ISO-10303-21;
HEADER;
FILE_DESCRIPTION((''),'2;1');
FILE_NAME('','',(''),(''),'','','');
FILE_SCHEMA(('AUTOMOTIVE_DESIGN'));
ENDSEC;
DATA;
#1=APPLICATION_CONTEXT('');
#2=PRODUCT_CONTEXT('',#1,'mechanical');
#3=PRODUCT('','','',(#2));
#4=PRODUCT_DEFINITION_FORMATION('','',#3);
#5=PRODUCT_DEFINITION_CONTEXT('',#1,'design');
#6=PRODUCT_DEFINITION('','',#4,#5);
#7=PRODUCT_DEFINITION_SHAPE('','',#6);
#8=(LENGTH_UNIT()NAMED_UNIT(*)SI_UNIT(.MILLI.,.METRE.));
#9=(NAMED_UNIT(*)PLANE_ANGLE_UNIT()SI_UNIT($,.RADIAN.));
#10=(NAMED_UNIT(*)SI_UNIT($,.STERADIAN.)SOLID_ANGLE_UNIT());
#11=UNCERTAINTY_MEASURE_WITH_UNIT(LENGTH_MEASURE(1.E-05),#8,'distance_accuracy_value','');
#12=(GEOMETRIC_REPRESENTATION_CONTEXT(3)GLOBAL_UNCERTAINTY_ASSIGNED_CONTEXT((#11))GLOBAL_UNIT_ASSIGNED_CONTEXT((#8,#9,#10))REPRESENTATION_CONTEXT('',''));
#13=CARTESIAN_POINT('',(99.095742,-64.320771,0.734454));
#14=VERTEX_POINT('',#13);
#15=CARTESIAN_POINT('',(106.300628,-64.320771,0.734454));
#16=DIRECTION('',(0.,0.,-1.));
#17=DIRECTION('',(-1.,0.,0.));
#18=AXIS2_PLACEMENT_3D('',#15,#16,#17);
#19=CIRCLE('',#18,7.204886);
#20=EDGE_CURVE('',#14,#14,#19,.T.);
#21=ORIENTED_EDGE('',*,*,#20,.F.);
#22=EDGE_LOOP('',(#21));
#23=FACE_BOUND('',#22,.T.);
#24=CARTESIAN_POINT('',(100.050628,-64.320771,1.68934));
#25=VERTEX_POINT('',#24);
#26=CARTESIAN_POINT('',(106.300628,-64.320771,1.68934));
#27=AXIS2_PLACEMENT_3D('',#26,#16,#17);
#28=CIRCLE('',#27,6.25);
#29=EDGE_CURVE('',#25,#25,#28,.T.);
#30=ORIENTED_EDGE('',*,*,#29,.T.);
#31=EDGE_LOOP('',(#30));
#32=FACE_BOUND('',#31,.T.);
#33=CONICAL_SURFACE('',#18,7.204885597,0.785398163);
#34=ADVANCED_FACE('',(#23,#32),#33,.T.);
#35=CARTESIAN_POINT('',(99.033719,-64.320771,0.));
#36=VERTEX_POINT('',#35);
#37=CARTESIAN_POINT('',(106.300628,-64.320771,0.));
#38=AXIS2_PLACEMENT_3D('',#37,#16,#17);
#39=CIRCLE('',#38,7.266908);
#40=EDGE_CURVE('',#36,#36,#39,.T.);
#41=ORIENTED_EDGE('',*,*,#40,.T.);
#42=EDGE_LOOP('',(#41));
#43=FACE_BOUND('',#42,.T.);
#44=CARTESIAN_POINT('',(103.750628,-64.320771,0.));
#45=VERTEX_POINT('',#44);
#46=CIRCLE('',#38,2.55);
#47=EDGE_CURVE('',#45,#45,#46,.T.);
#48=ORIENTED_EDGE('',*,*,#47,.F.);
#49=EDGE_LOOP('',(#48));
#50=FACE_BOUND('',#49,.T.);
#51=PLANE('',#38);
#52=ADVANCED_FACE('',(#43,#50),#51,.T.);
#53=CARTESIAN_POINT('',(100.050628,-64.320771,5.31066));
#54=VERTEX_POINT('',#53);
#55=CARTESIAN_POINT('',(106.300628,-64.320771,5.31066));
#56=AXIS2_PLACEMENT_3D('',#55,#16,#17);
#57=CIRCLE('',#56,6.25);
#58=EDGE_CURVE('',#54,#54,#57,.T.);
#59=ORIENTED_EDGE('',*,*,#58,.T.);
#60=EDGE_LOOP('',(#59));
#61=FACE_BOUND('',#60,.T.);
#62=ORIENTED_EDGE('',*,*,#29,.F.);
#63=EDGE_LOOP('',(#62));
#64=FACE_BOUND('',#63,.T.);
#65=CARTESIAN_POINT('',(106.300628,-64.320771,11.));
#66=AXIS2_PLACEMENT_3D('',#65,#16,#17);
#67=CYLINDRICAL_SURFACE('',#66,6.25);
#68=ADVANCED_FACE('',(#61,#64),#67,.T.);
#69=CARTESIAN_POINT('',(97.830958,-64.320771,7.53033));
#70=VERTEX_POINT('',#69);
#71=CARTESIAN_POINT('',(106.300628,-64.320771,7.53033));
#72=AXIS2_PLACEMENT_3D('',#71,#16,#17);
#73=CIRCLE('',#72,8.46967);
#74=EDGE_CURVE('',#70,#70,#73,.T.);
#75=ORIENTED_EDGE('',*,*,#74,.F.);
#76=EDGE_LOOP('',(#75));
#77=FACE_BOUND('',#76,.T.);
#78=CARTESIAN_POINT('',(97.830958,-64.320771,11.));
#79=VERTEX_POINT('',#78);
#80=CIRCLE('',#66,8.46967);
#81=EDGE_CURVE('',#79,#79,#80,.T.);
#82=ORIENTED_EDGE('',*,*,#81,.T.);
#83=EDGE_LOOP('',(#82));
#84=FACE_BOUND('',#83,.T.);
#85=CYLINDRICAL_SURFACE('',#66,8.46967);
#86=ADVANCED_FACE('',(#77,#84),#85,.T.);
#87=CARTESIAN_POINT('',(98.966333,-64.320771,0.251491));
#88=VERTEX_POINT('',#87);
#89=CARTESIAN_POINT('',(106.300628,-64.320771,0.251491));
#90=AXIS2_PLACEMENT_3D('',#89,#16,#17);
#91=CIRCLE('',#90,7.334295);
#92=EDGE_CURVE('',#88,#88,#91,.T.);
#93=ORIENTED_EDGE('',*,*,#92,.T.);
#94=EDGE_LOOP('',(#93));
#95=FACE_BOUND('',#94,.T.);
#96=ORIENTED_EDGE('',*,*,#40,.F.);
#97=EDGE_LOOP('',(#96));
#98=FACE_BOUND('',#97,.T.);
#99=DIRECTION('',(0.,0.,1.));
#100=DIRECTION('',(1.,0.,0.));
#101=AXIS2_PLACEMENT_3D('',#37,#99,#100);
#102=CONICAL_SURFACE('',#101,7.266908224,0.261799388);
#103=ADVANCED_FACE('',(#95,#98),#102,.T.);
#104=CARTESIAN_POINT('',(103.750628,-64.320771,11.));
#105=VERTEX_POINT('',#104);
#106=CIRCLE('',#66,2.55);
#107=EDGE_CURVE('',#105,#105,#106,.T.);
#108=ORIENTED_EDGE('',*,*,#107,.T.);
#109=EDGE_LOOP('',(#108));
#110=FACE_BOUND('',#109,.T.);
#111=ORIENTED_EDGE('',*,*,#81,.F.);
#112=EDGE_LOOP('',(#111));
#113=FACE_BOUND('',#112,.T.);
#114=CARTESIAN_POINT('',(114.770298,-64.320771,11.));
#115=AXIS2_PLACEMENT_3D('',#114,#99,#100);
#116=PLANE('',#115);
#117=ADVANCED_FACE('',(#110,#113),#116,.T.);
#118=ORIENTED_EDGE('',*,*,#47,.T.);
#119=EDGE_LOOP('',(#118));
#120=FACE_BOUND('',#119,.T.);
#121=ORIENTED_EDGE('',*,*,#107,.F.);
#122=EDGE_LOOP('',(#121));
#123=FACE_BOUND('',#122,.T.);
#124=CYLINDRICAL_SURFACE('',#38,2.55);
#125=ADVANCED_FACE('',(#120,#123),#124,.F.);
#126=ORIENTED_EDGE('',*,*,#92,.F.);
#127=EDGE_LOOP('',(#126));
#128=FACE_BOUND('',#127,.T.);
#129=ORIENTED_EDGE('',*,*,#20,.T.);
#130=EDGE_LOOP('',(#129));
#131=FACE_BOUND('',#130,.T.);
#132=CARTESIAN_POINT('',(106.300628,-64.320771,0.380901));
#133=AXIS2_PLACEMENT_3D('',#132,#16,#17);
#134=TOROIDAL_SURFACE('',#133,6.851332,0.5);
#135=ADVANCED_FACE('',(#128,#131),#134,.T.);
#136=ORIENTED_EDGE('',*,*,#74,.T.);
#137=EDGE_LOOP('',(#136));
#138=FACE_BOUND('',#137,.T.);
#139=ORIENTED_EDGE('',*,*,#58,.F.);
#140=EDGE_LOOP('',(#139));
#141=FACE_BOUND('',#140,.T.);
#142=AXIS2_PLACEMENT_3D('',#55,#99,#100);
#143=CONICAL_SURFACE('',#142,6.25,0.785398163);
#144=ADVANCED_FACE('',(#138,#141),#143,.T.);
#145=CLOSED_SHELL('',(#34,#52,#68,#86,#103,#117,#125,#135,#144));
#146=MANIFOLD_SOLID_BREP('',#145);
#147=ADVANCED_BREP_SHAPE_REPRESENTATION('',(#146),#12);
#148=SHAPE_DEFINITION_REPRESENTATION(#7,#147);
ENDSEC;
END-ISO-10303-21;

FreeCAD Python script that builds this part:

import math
import FreeCAD as App
import Part
import Sketcher
Q = App.Units.Quantity

doc = App.newDocument("Part")
params = doc.addObject("Spreadsheet::Sheet", "Params")
for row, (alias, value) in enumerate([
    ("sketch1_radius", "0.5 mm"),
    ("sketch1_height", "11 mm"),
    ("revolution_angle", "360 deg"),
    ("sketch2_diameter", "5.1 mm"),
    ("hole_diameter", "5.1 mm"),
    ("hole_depth", "11 mm"),
], start=1):
    params.set(f"A{row}", alias)
    params.set(f"B{row}", "=" + value)
    params.setAlias(f"B{row}", alias)

body = doc.addObject("PartDesign::Body", "Body")

# Sketch on XZ plane
sketch1 = doc.addObject("Sketcher::SketchObject", "Sketch")
body.addObject(sketch1)
sketch1.AttachmentSupport = (doc.XZ_Plane, [""])
sketch1.MapMode = "FlatFace"
sketch1.AttachmentOffset = App.Placement(App.Vector(0, 0, 64.320771), App.Rotation())
sketch1.addGeometry([
    Part.LineSegment(App.Vector(114.77, 11, 0), App.Vector(106.3, 11, 0)),  # 0
    Part.LineSegment(App.Vector(106.3, 11, 0), App.Vector(106.3, 0, 0)),  # 1
    Part.LineSegment(App.Vector(106.3, 0, 0), App.Vector(113.57, 0, 0)),  # 2
    Part.LineSegment(App.Vector(113.57, 0, 0), App.Vector(113.63, 0.25, 0)),  # 3
    Part.ArcOfCircle(Part.Circle(App.Vector(113.15, 0.38, 0), App.Vector(0, 0, 1), 0.5), math.radians(-15), math.radians(45)),  # 4
    Part.LineSegment(App.Vector(113.51, 0.73, 0), App.Vector(112.55, 1.69, 0)),  # 5
    Part.LineSegment(App.Vector(112.55, 1.69, 0), App.Vector(112.55, 5.31, 0)),  # 6
    Part.LineSegment(App.Vector(112.55, 5.31, 0), App.Vector(114.77, 7.53, 0)),  # 7
    Part.LineSegment(App.Vector(114.77, 7.53, 0), App.Vector(114.77, 11, 0)),  # 8
], False)
sketch1.addGeometry(Part.LineSegment(App.Vector(106.3, 11, 0), App.Vector(106.3, 0, 0)), True)  # axis
sketch1.addConstraint([
    Sketcher.Constraint("Coincident", 0, 2, 1, 1),
    Sketcher.Constraint("Coincident", 1, 2, 2, 1),
    Sketcher.Constraint("Coincident", 2, 2, 3, 1),
    Sketcher.Constraint("Tangent", 3, 2, 4, 1),
    Sketcher.Constraint("Tangent", 4, 2, 5, 1),
    Sketcher.Constraint("Coincident", 5, 2, 6, 1),
    Sketcher.Constraint("Coincident", 6, 2, 7, 1),
    Sketcher.Constraint("Coincident", 7, 2, 8, 1),
    Sketcher.Constraint("Coincident", 8, 2, 0, 1),
    Sketcher.Constraint("Horizontal", 0),
    Sketcher.Constraint("Vertical", 1),
    Sketcher.Constraint("Horizontal", 2),
    Sketcher.Constraint("Vertical", 6),
    Sketcher.Constraint("Vertical", 8),
    Sketcher.Constraint("Vertical", 9),
    Sketcher.Constraint("Coincident", 9, 1, 0, 2),
    Sketcher.Constraint("PointOnObject", 1, 2, -1),
    Sketcher.Constraint("PointOnObject", 9, 2, -1),
    Sketcher.Constraint("Perpendicular", 5, 7),
    Sketcher.Constraint("Radius", 4, 0.5),
    Sketcher.Constraint("DistanceY", 1, 2, 1, 1, 11.0),
    Sketcher.Constraint("Angle", 3, Q("75 deg")),
    Sketcher.Constraint("Angle", 5, Q("135 deg")),
    Sketcher.Constraint("DistanceX", 1, 2, 5, 2, 6.25),
    Sketcher.Constraint("DistanceX", 0, 2, 0, 1, 8.46967),
    Sketcher.Constraint("DistanceX", 2, 1, 2, 2, 7.266908),
    Sketcher.Constraint("DistanceY", 6, 1, 6, 2, 3.62132),
    Sketcher.Constraint("DistanceY", 8, 1, 8, 2, 3.46967),
    Sketcher.Constraint("DistanceX", -1, 1, 4, 3, 113.15196),
])
sketch1.setExpression("Constraints[19]", "Params.sketch1_radius")
sketch1.setExpression("Constraints[20]", "Params.sketch1_height")
revolution = doc.addObject("PartDesign::Revolution", "Revolution")
body.addObject(revolution)
revolution.Profile = sketch1
revolution.ReferenceAxis = (sketch1, ["Axis0"])
revolution.setExpression("Angle", "Params.revolution_angle")

# Sketch on XY plane
sketch2 = doc.addObject("Sketcher::SketchObject", "Sketch001")
body.addObject(sketch2)
sketch2.AttachmentSupport = (doc.XY_Plane, [""])
sketch2.MapMode = "FlatFace"
sketch2.addGeometry(Part.Circle(App.Vector(106.3, -64.3, 0), App.Vector(0, 0, 1), 2.5), False)
sketch2.addConstraint([
    Sketcher.Constraint("Diameter", 0, 5.1),
    Sketcher.Constraint("DistanceY", 0, 3, -1, 1, 64.320771),
    Sketcher.Constraint("DistanceX", -1, 1, 0, 3, 106.300628),
])
sketch2.setExpression("Constraints[0]", "Params.sketch2_diameter")
doc.recompute()
hole = doc.addObject("PartDesign::Hole", "Hole")
body.addObject(hole)
hole.Profile = sketch2
hole.ThreadType = "None"
hole.setExpression("Diameter", "Params.hole_diameter")
hole.DepthType = "Dimension"
hole.setExpression("Depth", "Params.hole_depth")
hole.DrillPoint = "Flat"
hole.Reversed = True

doc.recompute()
